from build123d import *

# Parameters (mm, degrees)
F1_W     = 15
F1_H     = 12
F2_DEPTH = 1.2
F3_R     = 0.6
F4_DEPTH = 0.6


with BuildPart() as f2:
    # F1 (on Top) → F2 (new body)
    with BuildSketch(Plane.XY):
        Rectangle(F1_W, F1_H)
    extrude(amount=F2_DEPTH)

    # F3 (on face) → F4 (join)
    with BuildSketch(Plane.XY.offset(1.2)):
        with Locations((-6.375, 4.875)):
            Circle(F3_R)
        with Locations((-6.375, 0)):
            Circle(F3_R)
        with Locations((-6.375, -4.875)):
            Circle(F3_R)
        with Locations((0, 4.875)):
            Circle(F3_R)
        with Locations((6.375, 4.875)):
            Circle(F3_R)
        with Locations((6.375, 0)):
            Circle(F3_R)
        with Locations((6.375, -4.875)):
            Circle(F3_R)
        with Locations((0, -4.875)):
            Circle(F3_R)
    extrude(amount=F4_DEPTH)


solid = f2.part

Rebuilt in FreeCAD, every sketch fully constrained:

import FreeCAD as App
import Part
import Sketcher
from FreeCAD import Vector
Q = App.Units.Quantity

doc = App.newDocument("Part")
body = doc.addObject("PartDesign::Body", "Body")

# Sketch on XY plane
sketch1 = body.newObject("Sketcher::SketchObject", "Sketch")
sketch1.AttachmentSupport = (doc.getObject("XY_Plane"), [""])
sketch1.MapMode = "FlatFace"
sketch1.addGeometry([
    Part.LineSegment(Vector(-8, 6, 0), Vector(-8, -6, 0)),
    Part.LineSegment(Vector(-8, -6, 0), Vector(8, -6, 0)),
    Part.LineSegment(Vector(8, -6, 0), Vector(8, 6, 0)),
    Part.LineSegment(Vector(8, 6, 0), Vector(-8, 6, 0)),
], False)
sketch1.addConstraint([
    Sketcher.Constraint("Coincident", 0, 2, 1, 1),
    Sketcher.Constraint("Coincident", 1, 2, 2, 1),
    Sketcher.Constraint("Coincident", 2, 2, 3, 1),
    Sketcher.Constraint("Coincident", 3, 2, 0, 1),
    Sketcher.Constraint("Vertical", 0),
    Sketcher.Constraint("Horizontal", 1),
    Sketcher.Constraint("Vertical", 2),
    Sketcher.Constraint("Horizontal", 3),
    Sketcher.Constraint("Symmetric", 0, 2, 2, 2, -1, 1),
    Sketcher.Constraint("DistanceX", 1, 1, 1, 2, Q("15 mm")),
    Sketcher.Constraint("DistanceY", 0, 2, 0, 1, Q("12 mm")),
])
pad1 = body.newObject("PartDesign::Pad", "Pad")
pad1.Profile = sketch1
pad1.Length = 1.2

# Sketch on XY plane
sketch2 = body.newObject("Sketcher::SketchObject", "Sketch001")
sketch2.AttachmentSupport = (doc.getObject("XY_Plane"), [""])
sketch2.MapMode = "FlatFace"
sketch2.AttachmentOffset = App.Placement(Vector(0, 0, 1.2), App.Rotation())
sketch2.addGeometry([
    Part.Circle(Vector(-6.4, 4.9, 0), Vector(0, 0, 1), 0.6),  # 0
    Part.Circle(Vector(-6.4, 0, 0), Vector(0, 0, 1), 0.6),  # 1
    Part.Circle(Vector(-6.4, -4.9, 0), Vector(0, 0, 1), 0.6),  # 2
    Part.Circle(Vector(0, 4.9, 0), Vector(0, 0, 1), 0.6),  # 3
    Part.Circle(Vector(6.4, 4.9, 0), Vector(0, 0, 1), 0.6),  # 4
    Part.Circle(Vector(6.4, 0, 0), Vector(0, 0, 1), 0.6),  # 5
    Part.Circle(Vector(6.4, -4.9, 0), Vector(0, 0, 1), 0.6),  # 6
    Part.Circle(Vector(0, -4.9, 0), Vector(0, 0, 1), 0.6),  # 7
], False)
sketch2.addConstraint([
    Sketcher.Constraint("Equal", 0, 1),
    Sketcher.Constraint("Equal", 1, 2),
    Sketcher.Constraint("Equal", 2, 3),
    Sketcher.Constraint("Equal", 3, 4),
    Sketcher.Constraint("Equal", 4, 5),
    Sketcher.Constraint("Equal", 5, 6),
    Sketcher.Constraint("Equal", 6, 7),
    Sketcher.Constraint("Symmetric", 2, 3, 4, 3, -1, 1),
    Sketcher.Constraint("Symmetric", 1, 3, 5, 3, -1, 1),
    Sketcher.Constraint("Symmetric", 0, 3, 6, 3, -1, 1),
    Sketcher.Constraint("Symmetric", 3, 3, 7, 3, -1, 1),
    Sketcher.Constraint("Symmetric", 0, 3, 4, 3, -2),
    Sketcher.Constraint("PointOnObject", 1, 3, -1),
    Sketcher.Constraint("PointOnObject", 3, 3, -2),
    Sketcher.Constraint("Horizontal", 0, 3, 3, 3),
    Sketcher.Constraint("Vertical", 0, 3, 1, 3),
    Sketcher.Constraint("Diameter", 0, Q("1.2 mm")),
    Sketcher.Constraint("DistanceY", 2, 3, 0, 3, Q("9.75 mm")),
    Sketcher.Constraint("DistanceX", 0, 3, 4, 3, Q("12.75 mm")),
])
pad2 = body.newObject("PartDesign::Pad", "Pad001")
pad2.Profile = sketch2
pad2.Length = 0.6

doc.recompute()
